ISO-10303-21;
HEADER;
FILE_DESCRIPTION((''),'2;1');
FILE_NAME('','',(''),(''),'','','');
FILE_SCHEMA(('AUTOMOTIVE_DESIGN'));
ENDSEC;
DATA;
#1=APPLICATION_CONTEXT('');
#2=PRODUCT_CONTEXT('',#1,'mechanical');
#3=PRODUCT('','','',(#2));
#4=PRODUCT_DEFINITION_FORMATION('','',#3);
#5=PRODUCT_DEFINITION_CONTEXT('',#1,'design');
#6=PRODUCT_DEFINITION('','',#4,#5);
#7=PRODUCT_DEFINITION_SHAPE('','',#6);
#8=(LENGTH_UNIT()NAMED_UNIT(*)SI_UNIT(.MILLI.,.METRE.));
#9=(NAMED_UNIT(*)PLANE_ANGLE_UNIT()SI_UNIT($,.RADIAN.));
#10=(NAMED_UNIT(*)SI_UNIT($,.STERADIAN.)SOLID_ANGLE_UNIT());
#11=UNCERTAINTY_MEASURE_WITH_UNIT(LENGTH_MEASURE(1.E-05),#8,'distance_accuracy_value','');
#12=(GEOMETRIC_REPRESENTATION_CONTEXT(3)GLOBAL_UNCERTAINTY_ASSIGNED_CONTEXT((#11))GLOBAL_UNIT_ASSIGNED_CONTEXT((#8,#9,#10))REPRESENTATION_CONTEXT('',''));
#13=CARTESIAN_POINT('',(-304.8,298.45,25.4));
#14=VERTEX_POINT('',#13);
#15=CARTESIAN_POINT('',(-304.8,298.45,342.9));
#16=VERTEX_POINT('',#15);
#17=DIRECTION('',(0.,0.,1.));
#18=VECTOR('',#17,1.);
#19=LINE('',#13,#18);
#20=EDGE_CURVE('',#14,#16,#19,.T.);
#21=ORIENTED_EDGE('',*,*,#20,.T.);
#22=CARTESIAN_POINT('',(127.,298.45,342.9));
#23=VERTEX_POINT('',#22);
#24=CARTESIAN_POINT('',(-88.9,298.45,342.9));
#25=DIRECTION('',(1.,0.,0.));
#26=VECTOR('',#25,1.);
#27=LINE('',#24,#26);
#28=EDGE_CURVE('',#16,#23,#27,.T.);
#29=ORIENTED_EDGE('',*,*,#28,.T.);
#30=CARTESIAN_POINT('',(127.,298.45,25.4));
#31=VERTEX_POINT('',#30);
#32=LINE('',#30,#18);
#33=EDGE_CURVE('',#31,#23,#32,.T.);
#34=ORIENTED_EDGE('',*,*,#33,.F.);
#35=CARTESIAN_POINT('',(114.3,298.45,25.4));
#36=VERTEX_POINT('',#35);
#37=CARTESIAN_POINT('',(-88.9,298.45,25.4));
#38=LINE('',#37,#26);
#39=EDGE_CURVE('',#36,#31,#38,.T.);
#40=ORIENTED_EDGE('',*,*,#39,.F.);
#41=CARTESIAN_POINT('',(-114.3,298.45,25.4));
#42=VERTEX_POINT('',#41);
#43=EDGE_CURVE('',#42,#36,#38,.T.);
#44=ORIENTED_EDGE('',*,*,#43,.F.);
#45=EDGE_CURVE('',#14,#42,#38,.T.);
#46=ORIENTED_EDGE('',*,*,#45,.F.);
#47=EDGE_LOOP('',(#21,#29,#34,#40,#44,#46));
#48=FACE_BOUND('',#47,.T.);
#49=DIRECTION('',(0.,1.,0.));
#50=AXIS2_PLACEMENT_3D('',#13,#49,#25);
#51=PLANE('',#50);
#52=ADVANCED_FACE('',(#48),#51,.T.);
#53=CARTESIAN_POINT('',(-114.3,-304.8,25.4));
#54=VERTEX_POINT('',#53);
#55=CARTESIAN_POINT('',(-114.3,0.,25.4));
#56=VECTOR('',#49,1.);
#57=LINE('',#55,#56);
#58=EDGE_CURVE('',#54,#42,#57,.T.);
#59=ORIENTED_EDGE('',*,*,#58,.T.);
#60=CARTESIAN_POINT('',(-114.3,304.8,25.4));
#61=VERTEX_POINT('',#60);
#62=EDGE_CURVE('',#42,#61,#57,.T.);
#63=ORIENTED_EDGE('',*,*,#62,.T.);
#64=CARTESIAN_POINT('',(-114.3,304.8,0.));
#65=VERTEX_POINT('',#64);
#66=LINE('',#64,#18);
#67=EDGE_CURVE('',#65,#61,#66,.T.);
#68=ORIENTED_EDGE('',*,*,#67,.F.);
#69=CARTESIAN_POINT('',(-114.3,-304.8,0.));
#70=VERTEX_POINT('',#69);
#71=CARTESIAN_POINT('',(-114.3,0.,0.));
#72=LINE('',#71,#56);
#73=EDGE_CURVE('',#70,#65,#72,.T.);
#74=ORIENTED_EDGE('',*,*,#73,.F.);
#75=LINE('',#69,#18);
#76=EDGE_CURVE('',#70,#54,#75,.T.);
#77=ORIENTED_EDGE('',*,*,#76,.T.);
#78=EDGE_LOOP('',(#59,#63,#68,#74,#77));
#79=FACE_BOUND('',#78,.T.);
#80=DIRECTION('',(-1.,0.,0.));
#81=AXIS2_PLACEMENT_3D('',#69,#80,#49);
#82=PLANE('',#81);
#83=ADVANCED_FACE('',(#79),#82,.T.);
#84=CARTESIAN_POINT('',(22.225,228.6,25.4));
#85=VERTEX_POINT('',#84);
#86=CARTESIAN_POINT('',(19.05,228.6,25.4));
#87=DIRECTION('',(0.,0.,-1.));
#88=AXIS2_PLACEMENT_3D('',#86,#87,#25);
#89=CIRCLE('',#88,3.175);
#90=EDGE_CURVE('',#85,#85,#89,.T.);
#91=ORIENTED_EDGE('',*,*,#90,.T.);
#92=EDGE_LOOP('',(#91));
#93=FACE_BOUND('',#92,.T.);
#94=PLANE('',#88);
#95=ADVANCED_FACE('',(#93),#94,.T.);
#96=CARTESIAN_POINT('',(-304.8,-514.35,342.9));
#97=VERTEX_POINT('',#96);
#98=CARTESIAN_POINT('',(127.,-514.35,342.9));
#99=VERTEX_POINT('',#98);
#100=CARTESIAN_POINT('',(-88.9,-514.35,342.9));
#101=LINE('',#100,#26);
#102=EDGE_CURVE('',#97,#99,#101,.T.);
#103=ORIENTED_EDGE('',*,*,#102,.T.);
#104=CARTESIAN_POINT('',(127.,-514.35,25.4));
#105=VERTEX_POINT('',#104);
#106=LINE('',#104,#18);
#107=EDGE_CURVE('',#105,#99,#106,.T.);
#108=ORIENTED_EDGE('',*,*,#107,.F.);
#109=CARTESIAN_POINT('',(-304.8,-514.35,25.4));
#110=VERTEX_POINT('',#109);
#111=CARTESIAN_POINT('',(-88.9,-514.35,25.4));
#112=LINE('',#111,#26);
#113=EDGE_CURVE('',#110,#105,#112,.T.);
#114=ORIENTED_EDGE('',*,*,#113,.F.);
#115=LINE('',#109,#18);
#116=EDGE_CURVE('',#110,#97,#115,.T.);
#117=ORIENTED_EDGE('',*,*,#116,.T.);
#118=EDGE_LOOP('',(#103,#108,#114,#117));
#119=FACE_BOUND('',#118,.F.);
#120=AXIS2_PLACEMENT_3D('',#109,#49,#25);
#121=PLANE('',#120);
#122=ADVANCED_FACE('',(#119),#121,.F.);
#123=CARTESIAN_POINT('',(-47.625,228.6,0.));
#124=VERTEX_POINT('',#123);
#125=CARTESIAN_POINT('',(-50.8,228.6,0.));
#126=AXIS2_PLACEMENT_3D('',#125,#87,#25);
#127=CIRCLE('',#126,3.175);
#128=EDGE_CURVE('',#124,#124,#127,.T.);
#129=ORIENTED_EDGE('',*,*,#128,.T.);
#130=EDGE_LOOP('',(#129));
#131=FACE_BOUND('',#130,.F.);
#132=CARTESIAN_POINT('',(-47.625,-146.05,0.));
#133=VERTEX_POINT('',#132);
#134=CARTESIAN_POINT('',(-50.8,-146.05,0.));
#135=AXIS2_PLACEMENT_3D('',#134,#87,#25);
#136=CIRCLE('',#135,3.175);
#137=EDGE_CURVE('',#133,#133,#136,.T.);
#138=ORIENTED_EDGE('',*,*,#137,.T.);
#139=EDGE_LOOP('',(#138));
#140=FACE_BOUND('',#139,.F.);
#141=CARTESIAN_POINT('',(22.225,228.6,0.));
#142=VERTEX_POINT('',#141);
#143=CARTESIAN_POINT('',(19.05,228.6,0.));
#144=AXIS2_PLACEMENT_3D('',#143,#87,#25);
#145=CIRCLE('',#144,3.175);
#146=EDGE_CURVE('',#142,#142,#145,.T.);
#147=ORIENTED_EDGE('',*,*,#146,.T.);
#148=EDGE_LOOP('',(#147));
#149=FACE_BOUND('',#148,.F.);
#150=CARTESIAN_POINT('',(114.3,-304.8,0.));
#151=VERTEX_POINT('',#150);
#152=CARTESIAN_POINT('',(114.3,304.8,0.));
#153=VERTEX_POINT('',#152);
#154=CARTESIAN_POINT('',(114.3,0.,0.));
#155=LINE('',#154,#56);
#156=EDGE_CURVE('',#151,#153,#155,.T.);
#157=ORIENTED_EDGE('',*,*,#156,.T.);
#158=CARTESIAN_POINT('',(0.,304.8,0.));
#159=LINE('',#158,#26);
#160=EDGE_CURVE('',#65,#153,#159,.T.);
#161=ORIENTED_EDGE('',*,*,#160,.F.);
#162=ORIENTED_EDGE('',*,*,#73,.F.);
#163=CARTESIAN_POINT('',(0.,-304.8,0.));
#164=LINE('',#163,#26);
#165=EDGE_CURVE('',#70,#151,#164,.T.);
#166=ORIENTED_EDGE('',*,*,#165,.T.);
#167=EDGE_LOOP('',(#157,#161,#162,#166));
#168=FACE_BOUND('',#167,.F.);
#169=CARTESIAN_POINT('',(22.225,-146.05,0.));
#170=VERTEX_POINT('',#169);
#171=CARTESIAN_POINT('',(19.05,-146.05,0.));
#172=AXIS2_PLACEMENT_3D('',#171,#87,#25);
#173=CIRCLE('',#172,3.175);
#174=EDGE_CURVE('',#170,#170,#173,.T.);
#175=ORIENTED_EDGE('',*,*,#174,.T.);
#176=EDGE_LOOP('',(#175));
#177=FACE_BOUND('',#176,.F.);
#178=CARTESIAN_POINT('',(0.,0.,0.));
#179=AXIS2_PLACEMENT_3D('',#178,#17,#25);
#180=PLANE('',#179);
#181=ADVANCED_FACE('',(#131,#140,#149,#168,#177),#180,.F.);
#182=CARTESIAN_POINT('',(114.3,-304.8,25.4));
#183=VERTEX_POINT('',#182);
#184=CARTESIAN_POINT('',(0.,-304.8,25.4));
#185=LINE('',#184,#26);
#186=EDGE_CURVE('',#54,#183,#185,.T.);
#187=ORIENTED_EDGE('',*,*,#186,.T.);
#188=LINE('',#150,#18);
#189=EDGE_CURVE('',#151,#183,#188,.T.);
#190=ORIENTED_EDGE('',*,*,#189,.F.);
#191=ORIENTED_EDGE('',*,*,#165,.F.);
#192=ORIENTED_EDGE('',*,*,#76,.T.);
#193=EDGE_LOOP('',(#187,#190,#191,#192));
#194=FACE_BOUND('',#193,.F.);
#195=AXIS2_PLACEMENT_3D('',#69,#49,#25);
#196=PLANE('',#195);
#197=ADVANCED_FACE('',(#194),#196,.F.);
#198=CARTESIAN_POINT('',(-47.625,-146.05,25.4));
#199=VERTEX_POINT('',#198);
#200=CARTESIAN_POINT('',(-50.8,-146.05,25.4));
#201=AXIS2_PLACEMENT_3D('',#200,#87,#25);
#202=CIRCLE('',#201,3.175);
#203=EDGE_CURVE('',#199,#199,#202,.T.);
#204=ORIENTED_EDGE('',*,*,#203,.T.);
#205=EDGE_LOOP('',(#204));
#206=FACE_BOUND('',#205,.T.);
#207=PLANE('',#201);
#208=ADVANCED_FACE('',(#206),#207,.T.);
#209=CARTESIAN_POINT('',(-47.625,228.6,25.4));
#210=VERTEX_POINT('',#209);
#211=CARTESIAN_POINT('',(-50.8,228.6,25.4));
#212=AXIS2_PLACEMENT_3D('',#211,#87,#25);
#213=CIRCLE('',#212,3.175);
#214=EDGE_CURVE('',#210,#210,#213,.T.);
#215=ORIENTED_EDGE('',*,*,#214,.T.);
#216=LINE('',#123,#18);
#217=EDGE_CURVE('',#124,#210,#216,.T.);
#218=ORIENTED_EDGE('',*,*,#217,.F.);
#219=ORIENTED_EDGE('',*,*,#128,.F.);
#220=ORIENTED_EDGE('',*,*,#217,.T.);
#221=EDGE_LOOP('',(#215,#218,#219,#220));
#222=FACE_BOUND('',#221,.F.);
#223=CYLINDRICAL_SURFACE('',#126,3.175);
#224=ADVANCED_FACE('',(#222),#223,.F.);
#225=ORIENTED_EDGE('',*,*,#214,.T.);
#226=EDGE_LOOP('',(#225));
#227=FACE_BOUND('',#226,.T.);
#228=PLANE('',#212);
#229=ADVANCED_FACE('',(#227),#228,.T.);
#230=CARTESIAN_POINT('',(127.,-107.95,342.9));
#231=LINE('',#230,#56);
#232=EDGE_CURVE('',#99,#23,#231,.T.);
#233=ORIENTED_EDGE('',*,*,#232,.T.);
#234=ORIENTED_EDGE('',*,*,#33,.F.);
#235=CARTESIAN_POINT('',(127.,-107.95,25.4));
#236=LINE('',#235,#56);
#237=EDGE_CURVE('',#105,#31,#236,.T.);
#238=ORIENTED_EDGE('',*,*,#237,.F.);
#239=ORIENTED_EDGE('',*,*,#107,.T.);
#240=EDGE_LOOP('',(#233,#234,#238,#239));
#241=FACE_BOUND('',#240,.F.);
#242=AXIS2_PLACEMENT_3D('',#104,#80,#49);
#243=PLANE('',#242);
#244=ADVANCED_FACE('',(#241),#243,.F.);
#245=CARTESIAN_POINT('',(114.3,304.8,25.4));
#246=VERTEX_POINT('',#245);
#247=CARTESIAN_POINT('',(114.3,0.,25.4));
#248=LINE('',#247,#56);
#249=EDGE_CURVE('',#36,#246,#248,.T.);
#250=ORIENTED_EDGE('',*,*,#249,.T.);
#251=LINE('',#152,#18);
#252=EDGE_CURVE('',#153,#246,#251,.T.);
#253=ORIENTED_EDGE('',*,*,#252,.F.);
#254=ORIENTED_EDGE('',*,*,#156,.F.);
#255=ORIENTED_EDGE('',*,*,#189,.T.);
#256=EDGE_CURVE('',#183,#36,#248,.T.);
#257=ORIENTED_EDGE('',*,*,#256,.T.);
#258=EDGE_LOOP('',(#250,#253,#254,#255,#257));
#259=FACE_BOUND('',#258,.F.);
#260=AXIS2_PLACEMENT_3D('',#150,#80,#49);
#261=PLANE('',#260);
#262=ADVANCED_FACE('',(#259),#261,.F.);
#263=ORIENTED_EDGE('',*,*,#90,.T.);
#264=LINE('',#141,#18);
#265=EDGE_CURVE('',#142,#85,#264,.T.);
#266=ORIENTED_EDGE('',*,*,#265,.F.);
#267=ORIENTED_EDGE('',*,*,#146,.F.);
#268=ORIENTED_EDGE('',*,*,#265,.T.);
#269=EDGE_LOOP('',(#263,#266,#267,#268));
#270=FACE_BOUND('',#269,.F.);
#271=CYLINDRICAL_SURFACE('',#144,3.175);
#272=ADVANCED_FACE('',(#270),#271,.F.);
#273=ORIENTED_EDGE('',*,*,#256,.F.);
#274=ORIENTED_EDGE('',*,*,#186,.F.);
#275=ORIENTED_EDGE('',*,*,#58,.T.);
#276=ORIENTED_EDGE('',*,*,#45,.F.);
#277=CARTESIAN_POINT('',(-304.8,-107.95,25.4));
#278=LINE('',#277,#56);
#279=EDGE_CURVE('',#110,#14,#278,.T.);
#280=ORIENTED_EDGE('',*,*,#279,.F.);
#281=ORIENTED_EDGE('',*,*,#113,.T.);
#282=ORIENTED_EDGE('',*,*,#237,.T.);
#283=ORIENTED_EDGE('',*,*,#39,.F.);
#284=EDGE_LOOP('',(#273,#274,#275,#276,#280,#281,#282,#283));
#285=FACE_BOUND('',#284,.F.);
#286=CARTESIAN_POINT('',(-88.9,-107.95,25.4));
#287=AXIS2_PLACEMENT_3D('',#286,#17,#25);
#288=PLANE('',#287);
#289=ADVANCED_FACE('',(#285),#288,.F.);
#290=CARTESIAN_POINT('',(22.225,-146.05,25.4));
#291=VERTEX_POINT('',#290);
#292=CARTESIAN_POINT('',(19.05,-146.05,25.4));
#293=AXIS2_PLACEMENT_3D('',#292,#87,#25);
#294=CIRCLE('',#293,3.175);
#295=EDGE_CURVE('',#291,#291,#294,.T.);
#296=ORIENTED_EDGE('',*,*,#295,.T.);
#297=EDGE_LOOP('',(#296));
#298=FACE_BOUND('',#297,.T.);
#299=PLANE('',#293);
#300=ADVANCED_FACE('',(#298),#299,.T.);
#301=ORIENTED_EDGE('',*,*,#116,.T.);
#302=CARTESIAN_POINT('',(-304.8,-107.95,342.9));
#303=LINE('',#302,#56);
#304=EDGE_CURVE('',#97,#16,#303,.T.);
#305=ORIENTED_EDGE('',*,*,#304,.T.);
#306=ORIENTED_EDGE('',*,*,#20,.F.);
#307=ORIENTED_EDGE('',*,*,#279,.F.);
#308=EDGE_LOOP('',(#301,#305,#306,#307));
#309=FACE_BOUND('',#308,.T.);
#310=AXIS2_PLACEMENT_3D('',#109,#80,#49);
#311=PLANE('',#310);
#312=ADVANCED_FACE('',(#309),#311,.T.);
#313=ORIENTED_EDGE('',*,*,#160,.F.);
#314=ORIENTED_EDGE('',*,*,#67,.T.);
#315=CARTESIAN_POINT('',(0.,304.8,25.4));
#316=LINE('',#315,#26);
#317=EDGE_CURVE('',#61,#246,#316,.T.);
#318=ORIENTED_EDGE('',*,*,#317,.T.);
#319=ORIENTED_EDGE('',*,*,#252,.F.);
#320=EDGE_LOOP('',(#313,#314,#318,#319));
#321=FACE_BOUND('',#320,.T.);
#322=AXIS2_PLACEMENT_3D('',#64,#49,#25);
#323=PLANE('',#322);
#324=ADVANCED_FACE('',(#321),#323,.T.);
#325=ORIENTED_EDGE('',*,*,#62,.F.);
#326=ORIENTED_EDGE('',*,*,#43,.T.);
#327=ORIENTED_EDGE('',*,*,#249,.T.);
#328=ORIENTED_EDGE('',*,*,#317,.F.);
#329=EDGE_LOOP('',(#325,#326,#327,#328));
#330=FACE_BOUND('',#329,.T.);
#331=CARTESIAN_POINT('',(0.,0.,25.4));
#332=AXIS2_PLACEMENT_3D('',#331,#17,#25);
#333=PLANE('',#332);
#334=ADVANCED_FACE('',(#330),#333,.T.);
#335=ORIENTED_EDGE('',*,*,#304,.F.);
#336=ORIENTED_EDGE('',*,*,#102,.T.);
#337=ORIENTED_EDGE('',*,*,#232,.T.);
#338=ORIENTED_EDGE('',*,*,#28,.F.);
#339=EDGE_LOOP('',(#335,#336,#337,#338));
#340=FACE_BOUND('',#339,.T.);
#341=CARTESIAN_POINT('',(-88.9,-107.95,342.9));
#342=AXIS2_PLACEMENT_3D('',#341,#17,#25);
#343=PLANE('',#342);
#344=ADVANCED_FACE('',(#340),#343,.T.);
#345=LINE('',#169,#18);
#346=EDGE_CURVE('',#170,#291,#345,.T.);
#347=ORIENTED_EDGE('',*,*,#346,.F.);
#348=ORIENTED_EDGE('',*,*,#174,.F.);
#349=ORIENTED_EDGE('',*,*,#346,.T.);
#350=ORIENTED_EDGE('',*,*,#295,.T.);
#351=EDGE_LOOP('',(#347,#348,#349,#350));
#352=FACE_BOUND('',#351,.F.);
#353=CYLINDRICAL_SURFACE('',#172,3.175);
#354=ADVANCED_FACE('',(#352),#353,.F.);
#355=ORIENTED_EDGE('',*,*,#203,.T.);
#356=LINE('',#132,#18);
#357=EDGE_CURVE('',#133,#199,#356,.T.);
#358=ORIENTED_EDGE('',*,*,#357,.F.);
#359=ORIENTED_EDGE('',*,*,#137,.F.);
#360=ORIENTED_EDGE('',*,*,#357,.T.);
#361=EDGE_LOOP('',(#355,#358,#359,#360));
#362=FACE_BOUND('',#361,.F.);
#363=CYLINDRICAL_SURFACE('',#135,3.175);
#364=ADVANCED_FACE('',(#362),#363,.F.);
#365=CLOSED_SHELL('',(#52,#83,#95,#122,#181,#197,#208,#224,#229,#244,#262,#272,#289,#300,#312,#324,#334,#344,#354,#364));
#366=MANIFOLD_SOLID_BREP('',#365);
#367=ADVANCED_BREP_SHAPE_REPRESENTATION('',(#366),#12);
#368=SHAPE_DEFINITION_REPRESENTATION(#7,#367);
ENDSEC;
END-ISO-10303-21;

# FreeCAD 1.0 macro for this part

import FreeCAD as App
import Part
import Sketcher

V = App.Vector
Q = App.Units.Quantity


def add_polygon(sketch, points):
    """Adds a closed chain of lines whose ends are joined by coincident constraints."""
    first, n = sketch.GeometryCount, len(points)
    for a, b in zip(points, points[1:] + points[:1]):
        sketch.addGeometry(Part.LineSegment(App.Vector(*a, 0), App.Vector(*b, 0)), False)
    for i in range(n):
        sketch.addConstraint(Sketcher.Constraint("Coincident", first + i, 2, first + (i + 1) % n, 1))

doc = App.newDocument("Part")
body = doc.addObject("PartDesign::Body", "Body")

# Sketch on XY plane
sketch1 = body.newObject("Sketcher::SketchObject", "Sketch")
sketch1.AttachmentSupport = (doc.getObject("XY_Plane"), [""])
sketch1.MapMode = "FlatFace"
add_polygon(sketch1, [(-114.3, 304.8), (-114.3, -304.8), (114.3, -304.8), (114.3, 304.8)])  # lines 0-3
sketch1.addConstraint(Sketcher.Constraint("Vertical", 0))
sketch1.addConstraint(Sketcher.Constraint("Horizontal", 1))
sketch1.addConstraint(Sketcher.Constraint("Vertical", 2))
sketch1.addConstraint(Sketcher.Constraint("Horizontal", 3))
sketch1.addConstraint(Sketcher.Constraint("Symmetric", 0, 2, 2, 2, -1, 1))
sketch1.addConstraint(Sketcher.Constraint("DistanceX", 1, 1, 1, 2, Q("9 in")))
sketch1.addConstraint(Sketcher.Constraint("DistanceY", 0, 2, 0, 1, Q("24 in")))
pad1 = body.newObject("PartDesign::Pad", "Pad")
pad1.Profile = sketch1
pad1.Length = Q("1 in")

# Sketch on XY plane
sketch2 = body.newObject("Sketcher::SketchObject", "Sketch001")
sketch2.AttachmentSupport = (doc.getObject("XY_Plane"), [""])
sketch2.MapMode = "FlatFace"
sketch2.AttachmentOffset = App.Placement(V(0, 0, 1 * 25.4), App.Rotation())
add_polygon(sketch2, [(-304.8, 298.45), (-304.8, -514.35), (127, -514.35), (127, 298.45)])  # lines 0-3
sketch2.addConstraint(Sketcher.Constraint("Vertical", 0))
sketch2.addConstraint(Sketcher.Constraint("Horizontal", 1))
sketch2.addConstraint(Sketcher.Constraint("Vertical", 2))
sketch2.addConstraint(Sketcher.Constraint("Horizontal", 3))
sketch2.addConstraint(Sketcher.Constraint("DistanceX", 1, 1, 1, 2, Q("17 in")))
sketch2.addConstraint(Sketcher.Constraint("DistanceY", 0, 2, 0, 1, Q("32 in")))
sketch2.addConstraint(Sketcher.Constraint("DistanceX", 0, 2, -1, 1, Q("12 in")))
sketch2.addConstraint(Sketcher.Constraint("DistanceY", 0, 2, -1, 1, Q("20.25 in")))
pad2 = body.newObject("PartDesign::Pad", "Pad001")
pad2.Profile = sketch2
pad2.Length = Q("12.5 in")

# Sketch on XY plane
sketch3 = body.newObject("Sketcher::SketchObject", "Sketch002")
sketch3.AttachmentSupport = (doc.getObject("XY_Plane"), [""])
sketch3.MapMode = "FlatFace"
sketch3.addGeometry(Part.Circle(V(-50.8, 228.6, 0), V(0, 0, 1), 3.175), False)
sketch3.addGeometry(Part.Circle(V(19.05, 228.6, 0), V(0, 0, 1), 3.175), False)
sketch3.addGeometry(Part.Circle(V(-50.8, -146.05, 0), V(0, 0, 1), 3.175), False)
sketch3.addGeometry(Part.Circle(V(19.05, -146.05, 0), V(0, 0, 1), 3.175), False)
sketch3.addConstraint(Sketcher.Constraint("Equal", 0, 1))
sketch3.addConstraint(Sketcher.Constraint("Equal", 1, 2))
sketch3.addConstraint(Sketcher.Constraint("Equal", 2, 3))
sketch3.addConstraint(Sketcher.Constraint("Horizontal", 0, 3, 1, 3))
sketch3.addConstraint(Sketcher.Constraint("Horizontal", 2, 3, 3, 3))
sketch3.addConstraint(Sketcher.Constraint("Vertical", 0, 3, 2, 3))
sketch3.addConstraint(Sketcher.Constraint("Vertical", 1, 3, 3, 3))
sketch3.addConstraint(Sketcher.Constraint("Diameter", 0, Q("0.25 in")))
sketch3.addConstraint(Sketcher.Constraint("DistanceX", 0, 3, -1, 1, Q("2 in")))
sketch3.addConstraint(Sketcher.Constraint("DistanceY", -1, 1, 0, 3, Q("9 in")))
sketch3.addConstraint(Sketcher.Constraint("DistanceX", -1, 1, 1, 3, Q("0.75 in")))
sketch3.addConstraint(Sketcher.Constraint("DistanceY", 2, 3, -1, 1, Q("5.75 in")))
pocket1 = body.newObject("PartDesign::Pocket", "Pocket")
pocket1.Profile = sketch3
pocket1.Length = Q("1 in")
pocket1.Reversed = True

doc.recompute()
